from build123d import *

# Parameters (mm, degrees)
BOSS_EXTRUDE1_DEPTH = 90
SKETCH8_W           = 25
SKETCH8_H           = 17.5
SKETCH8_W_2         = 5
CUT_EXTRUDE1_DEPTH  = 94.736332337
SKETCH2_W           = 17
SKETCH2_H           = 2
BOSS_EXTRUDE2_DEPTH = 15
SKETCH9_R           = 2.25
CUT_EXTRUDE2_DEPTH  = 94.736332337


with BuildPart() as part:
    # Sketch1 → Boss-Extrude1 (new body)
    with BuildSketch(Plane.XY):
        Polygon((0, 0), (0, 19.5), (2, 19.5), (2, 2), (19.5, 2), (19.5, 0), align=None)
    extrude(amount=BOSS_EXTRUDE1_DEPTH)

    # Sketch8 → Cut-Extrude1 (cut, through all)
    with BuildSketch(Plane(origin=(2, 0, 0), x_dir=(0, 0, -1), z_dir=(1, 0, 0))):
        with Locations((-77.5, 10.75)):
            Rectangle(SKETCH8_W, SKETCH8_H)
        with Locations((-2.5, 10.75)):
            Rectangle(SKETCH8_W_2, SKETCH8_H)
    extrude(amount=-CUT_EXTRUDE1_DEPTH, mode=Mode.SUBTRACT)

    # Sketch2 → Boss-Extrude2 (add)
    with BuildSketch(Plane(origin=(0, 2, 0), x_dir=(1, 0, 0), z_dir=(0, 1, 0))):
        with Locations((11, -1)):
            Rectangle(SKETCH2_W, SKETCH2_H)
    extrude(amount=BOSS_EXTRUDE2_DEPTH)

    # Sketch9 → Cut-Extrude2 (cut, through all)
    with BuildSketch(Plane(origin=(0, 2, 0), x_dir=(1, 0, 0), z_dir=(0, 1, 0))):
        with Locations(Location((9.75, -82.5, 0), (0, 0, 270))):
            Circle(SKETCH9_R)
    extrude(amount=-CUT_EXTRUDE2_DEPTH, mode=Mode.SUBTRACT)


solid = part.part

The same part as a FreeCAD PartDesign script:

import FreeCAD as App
import Part
import Sketcher
Q = App.Units.Quantity


def add_polygon(sketch, points):
    """Adds a closed chain of lines whose ends are joined by coincident constraints."""
    first, n = sketch.GeometryCount, len(points)
    for a, b in zip(points, points[1:] + points[:1]):
        sketch.addGeometry(Part.LineSegment(App.Vector(*a, 0), App.Vector(*b, 0)), False)
    for i in range(n):
        sketch.addConstraint(Sketcher.Constraint("Coincident", first + i, 2, first + (i + 1) % n, 1))

doc = App.newDocument("Part")
body = doc.addObject("PartDesign::Body", "Body")

sketch1 = body.newObject("Sketcher::SketchObject", "Sketch")
sketch1.AttachmentSupport = (doc.getObject("XY_Plane"), [""])
sketch1.MapMode = "FlatFace"
add_polygon(sketch1, [(0, 19.5), (0, 0), (19.5, 0), (19.5, 2), (2, 2), (2, 19.5)])
sketch1.addConstraint([
    Sketcher.Constraint("Vertical", 0),
    Sketcher.Constraint("Horizontal", 1),
    Sketcher.Constraint("Vertical", 2),
    Sketcher.Constraint("Horizontal", 3),
    Sketcher.Constraint("Vertical", 4),
    Sketcher.Constraint("Horizontal", 5),
    Sketcher.Constraint("Coincident", 0, 2, -1, 1),
    Sketcher.Constraint("Equal", 1, 0),
    Sketcher.Constraint("Equal", 5, 2),
    Sketcher.Constraint("DistanceX", 5, 2, 5, 1, Q("2 mm")),
    Sketcher.Constraint("DistanceX", 1, 1, 1, 2, Q("19.5 mm")),
])
pad1 = body.newObject("PartDesign::Pad", "Pad")
pad1.Profile = sketch1
pad1.Length = 90

sketch2 = body.newObject("Sketcher::SketchObject", "Sketch001")
sketch2.AttachmentSupport = (doc.getObject("YZ_Plane"), [""])
sketch2.MapMode = "FlatFace"
sketch2.AttachmentOffset = App.Placement(App.Vector(0, 0, 2), App.Rotation())
add_polygon(sketch2, [(19.5, 90), (2, 90), (2, 65), (19.5, 65)])
add_polygon(sketch2, [(19.5, 5), (2, 5), (2, 0), (19.5, 0)])
sketch2.addConstraint([
    Sketcher.Constraint("Horizontal", 0),
    Sketcher.Constraint("Vertical", 1),
    Sketcher.Constraint("Horizontal", 2),
    Sketcher.Constraint("Vertical", 3),
    Sketcher.Constraint("Horizontal", 4),
    Sketcher.Constraint("Vertical", 5),
    Sketcher.Constraint("Horizontal", 6),
    Sketcher.Constraint("Vertical", 7),
    Sketcher.Constraint("PointOnObject", 5, 2, -1),
    Sketcher.Constraint("Vertical", 1, 2, 4, 2),
    Sketcher.Constraint("Vertical", 3, 2, 6, 2),
    Sketcher.Constraint("DistanceY", 1, 2, 1, 1, Q("25 mm")),
    Sketcher.Constraint("DistanceY", 5, 2, 5, 1, Q("5 mm")),
    Sketcher.Constraint("DistanceX", 0, 2, 0, 1, Q("17.5 mm")),
    Sketcher.Constraint("DistanceX", -1, 1, 0, 2, Q("2 mm")),
    Sketcher.Constraint("DistanceY", -1, 1, 0, 2, Q("90 mm")),
])
pocket1 = body.newObject("PartDesign::Pocket", "Pocket")
pocket1.Profile = sketch2
pocket1.Type = "ThroughAll"

sketch3 = body.newObject("Sketcher::SketchObject", "Sketch002")
sketch3.AttachmentSupport = (doc.getObject("XZ_Plane"), [""])
sketch3.MapMode = "FlatFace"
sketch3.AttachmentOffset = App.Placement(App.Vector(0, 0, -2), App.Rotation())
add_polygon(sketch3, [(2.5, 0), (2.5, 2), (19.5, 2), (19.5, 0)])
sketch3.addConstraint([
    Sketcher.Constraint("Vertical", 0),
    Sketcher.Constraint("Horizontal", 1),
    Sketcher.Constraint("Vertical", 2),
    Sketcher.Constraint("Horizontal", 3),
    Sketcher.Constraint("PointOnObject", 2, 2, -1),
    Sketcher.Constraint("DistanceX", 1, 1, 1, 2, Q("17 mm")),
    Sketcher.Constraint("DistanceY", 0, 1, 0, 2, Q("2 mm")),
    Sketcher.Constraint("DistanceX", -1, 1, 0, 2, Q("2.5 mm")),
])
pad2 = body.newObject("PartDesign::Pad", "Pad001")
pad2.Profile = sketch3
pad2.Length = 15
pad2.Reversed = True

sketch4 = body.newObject("Sketcher::SketchObject", "Sketch003")
sketch4.AttachmentSupport = (doc.getObject("XZ_Plane"), [""])
sketch4.MapMode = "FlatFace"
sketch4.AttachmentOffset = App.Placement(App.Vector(0, 0, -2), App.Rotation())
sketch4.addGeometry(Part.Circle(App.Vector(9.75, 82.5, 0), App.Vector(0, 0, 1), 2.25), False)
sketch4.addConstraint([
    Sketcher.Constraint("Diameter", 0, Q("4.5 mm")),
    Sketcher.Constraint("DistanceY", -1, 1, 0, 3, Q("82.5 mm")),
    Sketcher.Constraint("DistanceX", -1, 1, 0, 3, Q("9.75 mm")),
])
pocket2 = body.newObject("PartDesign::Pocket", "Pocket001")
pocket2.Profile = sketch4
pocket2.Type = "ThroughAll"
pocket2.Reversed = True

doc.recompute()
